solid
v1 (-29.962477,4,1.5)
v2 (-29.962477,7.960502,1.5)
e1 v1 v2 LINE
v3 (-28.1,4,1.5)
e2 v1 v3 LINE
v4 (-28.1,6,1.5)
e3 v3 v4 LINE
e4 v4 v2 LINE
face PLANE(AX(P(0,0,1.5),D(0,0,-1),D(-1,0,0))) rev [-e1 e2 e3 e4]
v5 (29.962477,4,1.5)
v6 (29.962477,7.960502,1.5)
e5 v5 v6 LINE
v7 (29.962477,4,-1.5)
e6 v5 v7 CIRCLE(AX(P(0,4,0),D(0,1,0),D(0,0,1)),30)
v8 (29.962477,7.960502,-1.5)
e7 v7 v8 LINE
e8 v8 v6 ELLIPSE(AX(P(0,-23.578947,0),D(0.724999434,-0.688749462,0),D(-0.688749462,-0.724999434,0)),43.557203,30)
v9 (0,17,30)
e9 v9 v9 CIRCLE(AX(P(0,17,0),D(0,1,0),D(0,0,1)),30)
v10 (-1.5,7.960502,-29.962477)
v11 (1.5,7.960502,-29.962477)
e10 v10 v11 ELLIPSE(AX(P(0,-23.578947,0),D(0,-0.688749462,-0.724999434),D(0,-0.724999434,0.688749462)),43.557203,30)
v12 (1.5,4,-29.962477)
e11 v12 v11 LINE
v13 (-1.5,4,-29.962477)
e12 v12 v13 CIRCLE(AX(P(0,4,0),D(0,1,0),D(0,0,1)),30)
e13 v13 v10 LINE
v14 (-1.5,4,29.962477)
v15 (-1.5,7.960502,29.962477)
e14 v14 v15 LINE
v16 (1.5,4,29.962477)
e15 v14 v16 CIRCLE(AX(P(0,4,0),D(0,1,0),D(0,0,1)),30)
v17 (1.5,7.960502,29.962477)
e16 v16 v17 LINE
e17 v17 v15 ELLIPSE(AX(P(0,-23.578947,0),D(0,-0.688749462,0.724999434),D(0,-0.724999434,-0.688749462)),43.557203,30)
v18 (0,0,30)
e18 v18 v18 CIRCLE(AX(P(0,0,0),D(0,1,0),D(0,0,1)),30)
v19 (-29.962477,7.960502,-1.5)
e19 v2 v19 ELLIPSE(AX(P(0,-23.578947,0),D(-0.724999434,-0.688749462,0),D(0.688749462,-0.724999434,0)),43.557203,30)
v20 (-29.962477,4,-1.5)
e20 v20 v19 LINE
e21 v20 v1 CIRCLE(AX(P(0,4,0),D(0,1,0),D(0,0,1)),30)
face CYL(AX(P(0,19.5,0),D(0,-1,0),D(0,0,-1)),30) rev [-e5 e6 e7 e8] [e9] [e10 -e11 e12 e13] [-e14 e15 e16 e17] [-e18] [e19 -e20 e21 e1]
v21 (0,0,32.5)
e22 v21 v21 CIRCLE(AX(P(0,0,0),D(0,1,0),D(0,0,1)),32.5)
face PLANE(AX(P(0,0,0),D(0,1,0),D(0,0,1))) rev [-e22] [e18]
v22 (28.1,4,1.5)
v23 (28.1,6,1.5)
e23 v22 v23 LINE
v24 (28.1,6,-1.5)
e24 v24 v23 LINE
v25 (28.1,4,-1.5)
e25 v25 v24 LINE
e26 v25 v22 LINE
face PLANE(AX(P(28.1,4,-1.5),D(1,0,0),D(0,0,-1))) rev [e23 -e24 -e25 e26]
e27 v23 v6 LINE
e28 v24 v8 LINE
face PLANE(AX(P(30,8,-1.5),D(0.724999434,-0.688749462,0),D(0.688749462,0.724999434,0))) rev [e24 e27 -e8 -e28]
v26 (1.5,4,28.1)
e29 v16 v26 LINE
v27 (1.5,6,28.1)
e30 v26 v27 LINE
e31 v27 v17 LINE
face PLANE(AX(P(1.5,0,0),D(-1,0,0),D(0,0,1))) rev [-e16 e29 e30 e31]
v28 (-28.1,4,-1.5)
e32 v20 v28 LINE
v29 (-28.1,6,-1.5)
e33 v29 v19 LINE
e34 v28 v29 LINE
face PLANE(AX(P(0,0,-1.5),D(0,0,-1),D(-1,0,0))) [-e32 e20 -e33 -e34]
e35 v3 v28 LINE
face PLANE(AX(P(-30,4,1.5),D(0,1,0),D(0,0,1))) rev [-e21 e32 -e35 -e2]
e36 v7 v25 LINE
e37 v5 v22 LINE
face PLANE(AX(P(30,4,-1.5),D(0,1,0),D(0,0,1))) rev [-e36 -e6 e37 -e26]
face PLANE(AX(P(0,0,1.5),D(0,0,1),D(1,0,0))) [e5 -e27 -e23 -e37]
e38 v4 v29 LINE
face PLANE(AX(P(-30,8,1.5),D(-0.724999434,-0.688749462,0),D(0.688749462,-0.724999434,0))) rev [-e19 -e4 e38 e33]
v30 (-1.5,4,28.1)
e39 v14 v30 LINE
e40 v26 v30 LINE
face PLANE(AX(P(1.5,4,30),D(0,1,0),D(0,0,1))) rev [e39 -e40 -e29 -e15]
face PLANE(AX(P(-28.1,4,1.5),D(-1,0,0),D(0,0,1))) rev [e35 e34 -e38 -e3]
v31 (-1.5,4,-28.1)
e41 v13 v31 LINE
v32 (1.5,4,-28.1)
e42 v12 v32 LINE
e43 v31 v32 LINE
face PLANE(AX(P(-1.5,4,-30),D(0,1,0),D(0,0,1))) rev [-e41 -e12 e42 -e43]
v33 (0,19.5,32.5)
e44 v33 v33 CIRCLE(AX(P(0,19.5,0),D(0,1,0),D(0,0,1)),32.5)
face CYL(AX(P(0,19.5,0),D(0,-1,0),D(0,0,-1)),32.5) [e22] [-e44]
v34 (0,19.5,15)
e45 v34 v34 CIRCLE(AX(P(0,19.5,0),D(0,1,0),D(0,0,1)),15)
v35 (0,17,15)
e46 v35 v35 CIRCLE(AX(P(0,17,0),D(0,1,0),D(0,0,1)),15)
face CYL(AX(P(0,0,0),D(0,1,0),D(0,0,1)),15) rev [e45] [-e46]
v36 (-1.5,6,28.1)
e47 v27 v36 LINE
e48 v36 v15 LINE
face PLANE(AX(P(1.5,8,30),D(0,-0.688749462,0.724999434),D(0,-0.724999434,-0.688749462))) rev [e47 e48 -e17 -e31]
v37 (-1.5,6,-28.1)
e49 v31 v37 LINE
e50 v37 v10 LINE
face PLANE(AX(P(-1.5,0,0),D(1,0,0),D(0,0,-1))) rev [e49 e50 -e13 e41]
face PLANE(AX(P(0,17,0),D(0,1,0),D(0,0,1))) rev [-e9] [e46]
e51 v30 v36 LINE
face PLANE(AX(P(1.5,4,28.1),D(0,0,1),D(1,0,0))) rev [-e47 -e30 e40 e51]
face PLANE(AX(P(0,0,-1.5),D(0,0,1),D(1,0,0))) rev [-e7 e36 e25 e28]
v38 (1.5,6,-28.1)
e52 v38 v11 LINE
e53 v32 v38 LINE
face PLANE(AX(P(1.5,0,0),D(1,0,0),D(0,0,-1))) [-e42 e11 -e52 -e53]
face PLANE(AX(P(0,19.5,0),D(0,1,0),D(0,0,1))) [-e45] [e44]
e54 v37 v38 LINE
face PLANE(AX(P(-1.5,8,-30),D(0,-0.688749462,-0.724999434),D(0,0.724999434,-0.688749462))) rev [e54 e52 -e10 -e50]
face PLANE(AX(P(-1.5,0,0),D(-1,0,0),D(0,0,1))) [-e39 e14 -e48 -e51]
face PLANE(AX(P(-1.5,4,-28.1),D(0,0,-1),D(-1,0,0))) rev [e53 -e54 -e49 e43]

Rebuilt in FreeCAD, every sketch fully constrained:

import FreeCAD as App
import Part
import Sketcher

V = App.Vector


def faces_at(feature, points):
    """Names of the faces that lie closest to the given points."""
    faces = feature.Shape.Faces
    near = lambda p: min(range(len(faces)), key=lambda i: faces[i].distToShape(Part.Vertex(*p))[0])
    return sorted({f"Face{near(p) + 1}" for p in points})

doc = App.newDocument("Part")
params = doc.addObject("Spreadsheet::Sheet", "Params")
for row, (alias, value) in enumerate([
    ("sketch1_diameter", "65 mm"),
    ("pad1_length", "19.5 mm"),
    ("thickness_wall", "2.5 mm"),
    ("sketch2_diameter", "30 mm"),
    ("pocket1_length", "19.5 mm"),
    ("sketch3_width", "2 mm"),
    ("sketch3_width2", "4 mm"),
    ("sketch3_height", "1.9 mm"),
    ("pad2_length", "3 mm"),
], start=1):
    params.set(f"A{row}", alias)
    params.set(f"B{row}", "=" + value)
    params.setAlias(f"B{row}", alias)

body = doc.addObject("PartDesign::Body", "Body")

sketch1 = body.newObject("Sketcher::SketchObject", "Sketch")
sketch1.AttachmentSupport = (doc.getObject("XZ_Plane"), [""])
sketch1.MapMode = "FlatFace"
sketch1.addGeometry(Part.Circle(V(0, 0, 0), V(0, 0, 1), 32), False)
sketch1.addConstraint([
    Sketcher.Constraint("Coincident", 0, 3, -1, 1),
    Sketcher.Constraint("Diameter", 0, 65.0),
])
sketch1.setExpression("Constraints[1]", "Params.sketch1_diameter")
pad1 = body.newObject("PartDesign::Pad", "Pad")
pad1.Profile = sketch1
pad1.setExpression("Length", "Params.pad1_length")
pad1.Reversed = True
doc.recompute()

thickness = body.newObject("PartDesign::Thickness", "Thickness")
thickness.Base = (pad1, faces_at(pad1, [(0, 0, 0)]))
thickness.setExpression("Value", "Params.thickness_wall")
thickness.Reversed = True
thickness.Join = "Intersection"

sketch2 = body.newObject("Sketcher::SketchObject", "Sketch001")
sketch2.AttachmentSupport = (doc.getObject("XZ_Plane"), [""])
sketch2.MapMode = "FlatFace"
sketch2.AttachmentOffset = App.Placement(V(0, 0, -19.5), App.Rotation())
sketch2.addGeometry(Part.Circle(V(0, 0, 0), V(0, 0, 1), 15), False)
sketch2.addConstraint([
    Sketcher.Constraint("Coincident", 0, 3, -1, 1),
    Sketcher.Constraint("Diameter", 0, 30.0),
])
sketch2.setExpression("Constraints[1]", "Params.sketch2_diameter")
pocket1 = body.newObject("PartDesign::Pocket", "Pocket")
pocket1.Profile = sketch2
pocket1.setExpression("Length", "Params.pocket1_length")
pocket1.Reversed = True

sketch3 = body.newObject("Sketcher::SketchObject", "Sketch002")
sketch3.AttachmentSupport = (doc.getObject("YZ_Plane"), [""])
sketch3.MapMode = "FlatFace"
sketch3.addGeometry([
    Part.LineSegment(V(4, 30, 0), V(4, 28.1, 0)),
    Part.LineSegment(V(4, 28.1, 0), V(6, 28.1, 0)),
    Part.LineSegment(V(6, 28.1, 0), V(8, 30, 0)),
    Part.LineSegment(V(8, 30, 0), V(4, 30, 0)),
], False)
sketch3.addConstraint([
    Sketcher.Constraint("Coincident", 0, 2, 1, 1),
    Sketcher.Constraint("Coincident", 1, 2, 2, 1),
    Sketcher.Constraint("Coincident", 2, 2, 3, 1),
    Sketcher.Constraint("Coincident", 3, 2, 0, 1),
    Sketcher.Constraint("Vertical", 0),
    Sketcher.Constraint("Horizontal", 1),
    Sketcher.Constraint("Horizontal", 3),
    Sketcher.Constraint("DistanceX", 1, 1, 1, 2, 2.0),
    Sketcher.Constraint("DistanceX", 3, 2, 3, 1, 4.0),
    Sketcher.Constraint("DistanceY", 0, 2, 0, 1, 1.9),
    Sketcher.Constraint("DistanceX", -1, 1, 0, 2, 4.0),
    Sketcher.Constraint("DistanceY", -1, 1, 2, 2, 30.0),
])
sketch3.setExpression("Constraints[7]", "Params.sketch3_width")
sketch3.setExpression("Constraints[8]", "Params.sketch3_width2")
sketch3.setExpression("Constraints[9]", "Params.sketch3_height")
pad2 = body.newObject("PartDesign::Pad", "Pad001")
pad2.Profile = sketch3
pad2.setExpression("Length", "Params.pad2_length")
pad2.Midplane = True
doc.recompute()

polarpattern = body.newObject("PartDesign::PolarPattern", "PolarPattern")
polarpattern.Originals = [pad2]
polarpattern.Axis = (doc.getObject("Y_Axis"), [""])
polarpattern.Angle = 360
polarpattern.Occurrences = 4
body.Tip = polarpattern

doc.recompute()
